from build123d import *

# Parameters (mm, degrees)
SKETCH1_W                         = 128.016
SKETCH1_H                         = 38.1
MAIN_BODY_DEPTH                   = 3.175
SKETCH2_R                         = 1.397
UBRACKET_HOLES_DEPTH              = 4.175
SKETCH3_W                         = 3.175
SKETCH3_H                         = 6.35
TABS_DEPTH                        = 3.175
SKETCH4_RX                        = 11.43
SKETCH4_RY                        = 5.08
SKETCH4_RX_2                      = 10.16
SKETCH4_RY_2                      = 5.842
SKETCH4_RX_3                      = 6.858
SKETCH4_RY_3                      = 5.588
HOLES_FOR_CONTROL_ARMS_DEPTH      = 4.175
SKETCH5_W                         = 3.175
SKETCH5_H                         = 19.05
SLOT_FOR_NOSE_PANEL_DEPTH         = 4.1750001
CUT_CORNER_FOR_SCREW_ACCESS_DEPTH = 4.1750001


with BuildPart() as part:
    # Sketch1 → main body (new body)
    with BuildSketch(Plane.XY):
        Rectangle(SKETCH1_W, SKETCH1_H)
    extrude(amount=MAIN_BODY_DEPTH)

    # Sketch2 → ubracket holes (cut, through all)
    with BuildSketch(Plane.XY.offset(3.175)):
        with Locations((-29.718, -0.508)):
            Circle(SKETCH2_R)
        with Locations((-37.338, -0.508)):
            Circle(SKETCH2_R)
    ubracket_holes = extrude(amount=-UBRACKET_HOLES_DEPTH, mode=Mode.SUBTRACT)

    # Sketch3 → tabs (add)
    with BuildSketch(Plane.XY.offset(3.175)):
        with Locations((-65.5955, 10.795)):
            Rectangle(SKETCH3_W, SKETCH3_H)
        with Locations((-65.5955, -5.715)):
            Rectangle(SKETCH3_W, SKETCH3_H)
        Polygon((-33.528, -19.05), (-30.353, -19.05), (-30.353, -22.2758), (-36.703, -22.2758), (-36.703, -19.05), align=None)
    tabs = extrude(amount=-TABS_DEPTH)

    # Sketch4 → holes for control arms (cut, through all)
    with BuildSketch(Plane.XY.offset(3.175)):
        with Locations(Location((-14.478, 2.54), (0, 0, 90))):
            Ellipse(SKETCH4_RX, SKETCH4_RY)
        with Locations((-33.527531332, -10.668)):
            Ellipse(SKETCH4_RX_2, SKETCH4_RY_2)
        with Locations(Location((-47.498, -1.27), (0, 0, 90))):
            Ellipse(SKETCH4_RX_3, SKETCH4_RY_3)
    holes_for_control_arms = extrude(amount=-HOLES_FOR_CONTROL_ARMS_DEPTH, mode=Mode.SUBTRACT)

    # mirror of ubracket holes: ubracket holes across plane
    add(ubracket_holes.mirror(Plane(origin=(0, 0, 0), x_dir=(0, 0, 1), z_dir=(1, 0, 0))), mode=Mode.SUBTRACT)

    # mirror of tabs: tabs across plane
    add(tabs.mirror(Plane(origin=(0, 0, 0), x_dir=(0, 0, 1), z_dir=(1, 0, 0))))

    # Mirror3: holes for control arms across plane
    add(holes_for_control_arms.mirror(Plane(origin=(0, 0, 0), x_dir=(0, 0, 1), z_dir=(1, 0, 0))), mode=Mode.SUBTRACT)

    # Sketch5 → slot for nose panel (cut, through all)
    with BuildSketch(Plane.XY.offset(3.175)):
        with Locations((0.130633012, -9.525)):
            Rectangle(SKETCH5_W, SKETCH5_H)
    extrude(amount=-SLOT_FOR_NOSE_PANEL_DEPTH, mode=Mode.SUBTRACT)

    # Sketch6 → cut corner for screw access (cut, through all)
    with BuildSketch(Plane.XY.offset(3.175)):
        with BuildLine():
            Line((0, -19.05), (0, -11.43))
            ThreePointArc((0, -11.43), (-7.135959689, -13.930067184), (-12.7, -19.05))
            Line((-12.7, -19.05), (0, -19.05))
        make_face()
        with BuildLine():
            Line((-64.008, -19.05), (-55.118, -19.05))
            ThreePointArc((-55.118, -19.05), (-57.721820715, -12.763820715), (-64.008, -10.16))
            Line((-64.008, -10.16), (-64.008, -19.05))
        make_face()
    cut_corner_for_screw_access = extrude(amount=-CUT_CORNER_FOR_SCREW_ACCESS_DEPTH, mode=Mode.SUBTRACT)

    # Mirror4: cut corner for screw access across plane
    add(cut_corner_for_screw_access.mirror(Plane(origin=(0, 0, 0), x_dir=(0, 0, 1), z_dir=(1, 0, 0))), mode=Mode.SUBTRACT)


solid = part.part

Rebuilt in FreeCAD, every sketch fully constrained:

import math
import FreeCAD as App
import Part
import Sketcher

V = App.Vector
Q = App.Units.Quantity

doc = App.newDocument("Part")
params = doc.addObject("Spreadsheet::Sheet", "Params")
for row, (alias, value) in enumerate([
    ("sketch1_height", "1.5 in"),
    ("sketch1_width", "5.04 in"),
    ("pad1_length", "0.125 in"),
    ("sketch2_diameter", "0.11 in"),
    ("sketch3_width", "0.25 in"),
    ("sketch3_width2", "0.125 in"),
    ("sketch3_height", "0.127 in"),
    ("pad2_length", "0.125 in"),
    ("sketch5_height", "0.75 in"),
    ("sketch5_width", "0.125 in"),
    ("sketch6_radius", "0.35 in"),
    ("sketch6_width", "0.5 in"),
    ("sketch6_height", "0.3 in"),
], start=1):
    params.set(f"A{row}", alias)
    params.set(f"B{row}", "=" + value)
    params.setAlias(f"B{row}", alias)

body = doc.addObject("PartDesign::Body", "Body")

# Sketch on XY plane
sketch1 = doc.addObject("Sketcher::SketchObject", "Sketch")
body.addObject(sketch1)
sketch1.AttachmentSupport = (doc.XY_Plane, [""])
sketch1.MapMode = "FlatFace"
sketch1.addGeometry(Part.LineSegment(V(-64, 19, 0), V(-64, -19, 0)), False)
sketch1.addGeometry(Part.LineSegment(V(-64, -19, 0), V(64, -19, 0)), False)
sketch1.addGeometry(Part.LineSegment(V(64, -19, 0), V(64, 19, 0)), False)
sketch1.addGeometry(Part.LineSegment(V(64, 19, 0), V(-64, 19, 0)), False)
sketch1.addConstraint(Sketcher.Constraint("Coincident", 0, 2, 1, 1))
sketch1.addConstraint(Sketcher.Constraint("Coincident", 1, 2, 2, 1))
sketch1.addConstraint(Sketcher.Constraint("Coincident", 2, 2, 3, 1))
sketch1.addConstraint(Sketcher.Constraint("Coincident", 3, 2, 0, 1))
sketch1.addConstraint(Sketcher.Constraint("Vertical", 0))
sketch1.addConstraint(Sketcher.Constraint("Horizontal", 1))
sketch1.addConstraint(Sketcher.Constraint("Vertical", 2))
sketch1.addConstraint(Sketcher.Constraint("Horizontal", 3))
sketch1.addConstraint(Sketcher.Constraint("Symmetric", 0, 2, 2, 2, -1, 1))
sketch1.addConstraint(Sketcher.Constraint("DistanceY", 0, 2, 0, 1, Q("1.5 in")))
sketch1.addConstraint(Sketcher.Constraint("DistanceX", 1, 1, 1, 2, Q("5.04 in")))
sketch1.setExpression("Constraints[9]", "Params.sketch1_height")
sketch1.setExpression("Constraints[10]", "Params.sketch1_width")
pad1 = doc.addObject("PartDesign::Pad", "Pad")
body.addObject(pad1)
pad1.Profile = sketch1
pad1.setExpression("Length", "Params.pad1_length")

# Sketch on XY plane
sketch2 = doc.addObject("Sketcher::SketchObject", "Sketch001")
body.addObject(sketch2)
sketch2.AttachmentSupport = (doc.XY_Plane, [""])
sketch2.MapMode = "FlatFace"
sketch2.AttachmentOffset = App.Placement(V(0, 0, 0.125 * 25.4), App.Rotation())
sketch2.addGeometry(Part.Circle(V(-29.7, -0.5, 0), V(0, 0, 1), 1.4), False)
sketch2.addGeometry(Part.Circle(V(-37.3, -0.5, 0), V(0, 0, 1), 1.4), False)
sketch2.addConstraint(Sketcher.Constraint("Equal", 0, 1))
sketch2.addConstraint(Sketcher.Constraint("Horizontal", 0, 3, 1, 3))
sketch2.addConstraint(Sketcher.Constraint("Diameter", 0, Q("0.11 in")))
sketch2.addConstraint(Sketcher.Constraint("DistanceX", 1, 3, 0, 3, Q("0.3 in")))
sketch2.addConstraint(Sketcher.Constraint("DistanceX", 0, 3, -1, 1, Q("1.17 in")))
sketch2.addConstraint(Sketcher.Constraint("DistanceY", 0, 3, -1, 1, Q("0.02 in")))
sketch2.setExpression("Constraints[2]", "Params.sketch2_diameter")
pocket1 = doc.addObject("PartDesign::Pocket", "Pocket")
body.addObject(pocket1)
pocket1.Profile = sketch2
pocket1.Type = "ThroughAll"

# Sketch on XY plane
sketch3 = doc.addObject("Sketcher::SketchObject", "Sketch002")
body.addObject(sketch3)
sketch3.AttachmentSupport = (doc.XY_Plane, [""])
sketch3.MapMode = "FlatFace"
sketch3.AttachmentOffset = App.Placement(V(0, 0, 0.125 * 25.4), App.Rotation())
sketch3.addGeometry(Part.LineSegment(V(-67.2, 14, 0), V(-67.2, 7.6, 0)), False)
sketch3.addGeometry(Part.LineSegment(V(-67.2, 7.6, 0), V(-64, 7.6, 0)), False)
sketch3.addGeometry(Part.LineSegment(V(-64, 7.6, 0), V(-64, 14, 0)), False)
sketch3.addGeometry(Part.LineSegment(V(-64, 14, 0), V(-67.2, 14, 0)), False)
sketch3.addGeometry(Part.LineSegment(V(-67.2, -2.5, 0), V(-67.2, -8.9, 0)), False)
sketch3.addGeometry(Part.LineSegment(V(-67.2, -8.9, 0), V(-64, -8.9, 0)), False)
sketch3.addGeometry(Part.LineSegment(V(-64, -8.9, 0), V(-64, -2.5, 0)), False)
sketch3.addGeometry(Part.LineSegment(V(-64, -2.5, 0), V(-67.2, -2.5, 0)), False)
sketch3.addGeometry(Part.LineSegment(V(-30.4, -19.1, 0), V(-36.7, -19.1, 0)), False)
sketch3.addGeometry(Part.LineSegment(V(-36.7, -19.1, 0), V(-36.7, -22.3, 0)), False)
sketch3.addGeometry(Part.LineSegment(V(-36.7, -22.3, 0), V(-30.4, -22.3, 0)), False)
sketch3.addGeometry(Part.LineSegment(V(-30.4, -22.3, 0), V(-30.4, -19.1, 0)), False)
sketch3.addConstraint(Sketcher.Constraint("Coincident", 0, 2, 1, 1))
sketch3.addConstraint(Sketcher.Constraint("Coincident", 1, 2, 2, 1))
sketch3.addConstraint(Sketcher.Constraint("Coincident", 2, 2, 3, 1))
sketch3.addConstraint(Sketcher.Constraint("Coincident", 3, 2, 0, 1))
sketch3.addConstraint(Sketcher.Constraint("Coincident", 4, 2, 5, 1))
sketch3.addConstraint(Sketcher.Constraint("Coincident", 5, 2, 6, 1))
sketch3.addConstraint(Sketcher.Constraint("Coincident", 6, 2, 7, 1))
sketch3.addConstraint(Sketcher.Constraint("Coincident", 7, 2, 4, 1))
sketch3.addConstraint(Sketcher.Constraint("Coincident", 8, 2, 9, 1))
sketch3.addConstraint(Sketcher.Constraint("Coincident", 9, 2, 10, 1))
sketch3.addConstraint(Sketcher.Constraint("Coincident", 10, 2, 11, 1))
sketch3.addConstraint(Sketcher.Constraint("Coincident", 11, 2, 8, 1))
sketch3.addConstraint(Sketcher.Constraint("Vertical", 0))
sketch3.addConstraint(Sketcher.Constraint("Horizontal", 1))
sketch3.addConstraint(Sketcher.Constraint("Vertical", 2))
sketch3.addConstraint(Sketcher.Constraint("Horizontal", 3))
sketch3.addConstraint(Sketcher.Constraint("Vertical", 4))
sketch3.addConstraint(Sketcher.Constraint("Horizontal", 5))
sketch3.addConstraint(Sketcher.Constraint("Vertical", 6))
sketch3.addConstraint(Sketcher.Constraint("Horizontal", 7))
sketch3.addConstraint(Sketcher.Constraint("Horizontal", 8))
sketch3.addConstraint(Sketcher.Constraint("Vertical", 9))
sketch3.addConstraint(Sketcher.Constraint("Horizontal", 10))
sketch3.addConstraint(Sketcher.Constraint("Vertical", 11))
sketch3.addConstraint(Sketcher.Constraint("Vertical", 3, 2, 4, 2))
sketch3.addConstraint(Sketcher.Constraint("Vertical", 2, 2, 5, 2))
sketch3.addConstraint(Sketcher.Constraint("Equal", 10, 0))
sketch3.addConstraint(Sketcher.Constraint("Equal", 2, 4))
sketch3.addConstraint(Sketcher.Constraint("DistanceX", 8, 2, 8, 1, Q("0.25 in")))
sketch3.addConstraint(Sketcher.Constraint("DistanceY", -1, 1, 0, 2, Q("0.3 in")))
sketch3.addConstraint(Sketcher.Constraint("DistanceY", 6, 2, -1, 1, Q("0.1 in")))
sketch3.addConstraint(Sketcher.Constraint("DistanceY", 8, 2, 5, 2, Q("0.4 in")))
sketch3.addConstraint(Sketcher.Constraint("DistanceX", 4, 2, 8, 2, Q("1.2 in")))
sketch3.addConstraint(Sketcher.Constraint("DistanceX", 1, 1, 1, 2, Q("0.125 in")))
sketch3.addConstraint(Sketcher.Constraint("DistanceY", 9, 2, 9, 1, Q("0.127 in")))
sketch3.addConstraint(Sketcher.Constraint("DistanceX", 1, 2, -1, 1, Q("2.52 in")))
sketch3.setExpression("Constraints[28]", "Params.sketch3_width")
sketch3.setExpression("Constraints[33]", "Params.sketch3_width2")
sketch3.setExpression("Constraints[34]", "Params.sketch3_height")
pad2 = doc.addObject("PartDesign::Pad", "Pad001")
body.addObject(pad2)
pad2.Profile = sketch3
pad2.setExpression("Length", "Params.pad2_length")
pad2.Reversed = True

# Sketch on XY plane
sketch4 = doc.addObject("Sketcher::SketchObject", "Sketch003")
body.addObject(sketch4)
sketch4.AttachmentSupport = (doc.XY_Plane, [""])
sketch4.MapMode = "FlatFace"
sketch4.AttachmentOffset = App.Placement(V(0, 0, 0.125 * 25.4), App.Rotation())
sketch4.addGeometry(Part.Ellipse(V(-14.478, 13.97, 0), V(-19.558, 2.54, 0), V(-14.478, 2.54, 0)), False)
sketch4.addGeometry(Part.Ellipse(V(-23.367531, -10.668, 0), V(-33.527531, -4.826, 0), V(-33.527531, -10.668, 0)), False)
sketch4.addGeometry(Part.Ellipse(V(-47.498, 5.588, 0), V(-53.086, -1.27, 0), V(-47.498, -1.27, 0)), False)
sketch4.addConstraint(Sketcher.Constraint("Block", 0))
sketch4.addConstraint(Sketcher.Constraint("Block", 1))
sketch4.addConstraint(Sketcher.Constraint("Block", 2))
pocket2 = doc.addObject("PartDesign::Pocket", "Pocket001")
body.addObject(pocket2)
pocket2.Profile = sketch4
pocket2.Type = "ThroughAll"
doc.recompute()

mirrored = doc.addObject("PartDesign::Mirrored", "Mirrored")
body.addObject(mirrored)
mirrored.Originals = [pocket1]
mirrored.MirrorPlane = (doc.YZ_Plane, [""])
body.Tip = mirrored
doc.recompute()

mirrored2 = doc.addObject("PartDesign::Mirrored", "Mirrored001")
body.addObject(mirrored2)
mirrored2.Originals = [pad2]
mirrored2.MirrorPlane = (doc.YZ_Plane, [""])
body.Tip = mirrored2
doc.recompute()

mirrored3 = doc.addObject("PartDesign::Mirrored", "Mirrored002")
body.addObject(mirrored3)
mirrored3.Originals = [pocket2]
mirrored3.MirrorPlane = (doc.YZ_Plane, [""])
body.Tip = mirrored3

# Sketch on XY plane
sketch5 = doc.addObject("Sketcher::SketchObject", "Sketch004")
body.addObject(sketch5)
sketch5.AttachmentSupport = (doc.XY_Plane, [""])
sketch5.MapMode = "FlatFace"
sketch5.AttachmentOffset = App.Placement(V(0, 0, 0.125 * 25.4), App.Rotation())
sketch5.addGeometry(Part.LineSegment(V(-1.5, 0, 0), V(-1.5, -19.1, 0)), False)
sketch5.addGeometry(Part.LineSegment(V(-1.5, -19.1, 0), V(1.7, -19.1, 0)), False)
sketch5.addGeometry(Part.LineSegment(V(1.7, -19.1, 0), V(1.7, 0, 0)), False)
sketch5.addGeometry(Part.LineSegment(V(1.7, 0, 0), V(-1.5, 0, 0)), False)
sketch5.addConstraint(Sketcher.Constraint("Coincident", 0, 2, 1, 1))
sketch5.addConstraint(Sketcher.Constraint("Coincident", 1, 2, 2, 1))
sketch5.addConstraint(Sketcher.Constraint("Coincident", 2, 2, 3, 1))
sketch5.addConstraint(Sketcher.Constraint("Coincident", 3, 2, 0, 1))
sketch5.addConstraint(Sketcher.Constraint("Vertical", 0))
sketch5.addConstraint(Sketcher.Constraint("Horizontal", 1))
sketch5.addConstraint(Sketcher.Constraint("Vertical", 2))
sketch5.addConstraint(Sketcher.Constraint("Horizontal", 3))
sketch5.addConstraint(Sketcher.Constraint("PointOnObject", 2, 2, -1))
sketch5.addConstraint(Sketcher.Constraint("DistanceY", 0, 2, 0, 1, Q("0.75 in")))
sketch5.addConstraint(Sketcher.Constraint("DistanceX", 1, 1, 1, 2, Q("0.125 in")))
sketch5.addConstraint(Sketcher.Constraint("DistanceX", 0, 2, -1, 1, Q("1.456867 mm")))
sketch5.setExpression("Constraints[9]", "Params.sketch5_height")
sketch5.setExpression("Constraints[10]", "Params.sketch5_width")
pocket3 = doc.addObject("PartDesign::Pocket", "Pocket002")
body.addObject(pocket3)
pocket3.Profile = sketch5
pocket3.Type = "ThroughAll"

# Sketch on XY plane
sketch6 = doc.addObject("Sketcher::SketchObject", "Sketch005")
body.addObject(sketch6)
sketch6.AttachmentSupport = (doc.XY_Plane, [""])
sketch6.MapMode = "FlatFace"
sketch6.AttachmentOffset = App.Placement(V(0, 0, 0.125 * 25.4), App.Rotation())
sketch6.addGeometry(Part.LineSegment(V(0, -19, 0), V(0, -11, 0)), False)
sketch6.addGeometry(Part.ArcOfCircle(Part.Circle(V(2, -30, 0), V(0, 0, 1), 19), math.radians(98), math.radians(144)), False)
sketch6.addGeometry(Part.LineSegment(V(-13, -19, 0), V(0, -19, 0)), False)
sketch6.addGeometry(Part.LineSegment(V(-64, -19, 0), V(-55, -19, 0)), False)
sketch6.addGeometry(Part.ArcOfCircle(Part.Circle(V(-64, -19, 0), V(0, 0, 1), 9), math.radians(0), math.radians(90)), False)
sketch6.addGeometry(Part.LineSegment(V(-64, -10, 0), V(-64, -19, 0)), False)
sketch6.addConstraint(Sketcher.Constraint("Coincident", 0, 2, 1, 1))
sketch6.addConstraint(Sketcher.Constraint("Coincident", 1, 2, 2, 1))
sketch6.addConstraint(Sketcher.Constraint("Coincident", 2, 2, 0, 1))
sketch6.addConstraint(Sketcher.Constraint("Coincident", 3, 2, 4, 1))
sketch6.addConstraint(Sketcher.Constraint("Coincident", 4, 2, 5, 1))
sketch6.addConstraint(Sketcher.Constraint("Coincident", 5, 2, 3, 1))
sketch6.addConstraint(Sketcher.Constraint("Vertical", 0))
sketch6.addConstraint(Sketcher.Constraint("Horizontal", 2))
sketch6.addConstraint(Sketcher.Constraint("Horizontal", 3))
sketch6.addConstraint(Sketcher.Constraint("Vertical", 5))
sketch6.addConstraint(Sketcher.Constraint("Coincident", 5, 2, 4, 3))
sketch6.addConstraint(Sketcher.Constraint("PointOnObject", 0, 2, -2))
sketch6.addConstraint(Sketcher.Constraint("Horizontal", 4, 3, 1, 2))
sketch6.addConstraint(Sketcher.Constraint("Radius", 4, Q("0.35 in")))
sketch6.addConstraint(Sketcher.Constraint("DistanceX", 2, 1, 2, 2, Q("0.5 in")))
sketch6.addConstraint(Sketcher.Constraint("DistanceY", 0, 1, 0, 2, Q("0.3 in")))
sketch6.addConstraint(Sketcher.Constraint("DistanceY", 4, 2, -1, 1, Q("0.4 in")))
sketch6.addConstraint(Sketcher.Constraint("DistanceX", 4, 3, -1, 1, Q("2.52 in")))
sketch6.addConstraint(Sketcher.Constraint("Radius", 1, Q("18.712718 mm")))
sketch6.setExpression("Constraints[13]", "Params.sketch6_radius")
sketch6.setExpression("Constraints[14]", "Params.sketch6_width")
sketch6.setExpression("Constraints[15]", "Params.sketch6_height")
pocket4 = doc.addObject("PartDesign::Pocket", "Pocket003")
body.addObject(pocket4)
pocket4.Profile = sketch6
pocket4.Type = "ThroughAll"
doc.recompute()

mirrored4 = doc.addObject("PartDesign::Mirrored", "Mirrored003")
body.addObject(mirrored4)
mirrored4.Originals = [pocket4]
mirrored4.MirrorPlane = (doc.YZ_Plane, [""])
body.Tip = mirrored4

doc.recompute()
